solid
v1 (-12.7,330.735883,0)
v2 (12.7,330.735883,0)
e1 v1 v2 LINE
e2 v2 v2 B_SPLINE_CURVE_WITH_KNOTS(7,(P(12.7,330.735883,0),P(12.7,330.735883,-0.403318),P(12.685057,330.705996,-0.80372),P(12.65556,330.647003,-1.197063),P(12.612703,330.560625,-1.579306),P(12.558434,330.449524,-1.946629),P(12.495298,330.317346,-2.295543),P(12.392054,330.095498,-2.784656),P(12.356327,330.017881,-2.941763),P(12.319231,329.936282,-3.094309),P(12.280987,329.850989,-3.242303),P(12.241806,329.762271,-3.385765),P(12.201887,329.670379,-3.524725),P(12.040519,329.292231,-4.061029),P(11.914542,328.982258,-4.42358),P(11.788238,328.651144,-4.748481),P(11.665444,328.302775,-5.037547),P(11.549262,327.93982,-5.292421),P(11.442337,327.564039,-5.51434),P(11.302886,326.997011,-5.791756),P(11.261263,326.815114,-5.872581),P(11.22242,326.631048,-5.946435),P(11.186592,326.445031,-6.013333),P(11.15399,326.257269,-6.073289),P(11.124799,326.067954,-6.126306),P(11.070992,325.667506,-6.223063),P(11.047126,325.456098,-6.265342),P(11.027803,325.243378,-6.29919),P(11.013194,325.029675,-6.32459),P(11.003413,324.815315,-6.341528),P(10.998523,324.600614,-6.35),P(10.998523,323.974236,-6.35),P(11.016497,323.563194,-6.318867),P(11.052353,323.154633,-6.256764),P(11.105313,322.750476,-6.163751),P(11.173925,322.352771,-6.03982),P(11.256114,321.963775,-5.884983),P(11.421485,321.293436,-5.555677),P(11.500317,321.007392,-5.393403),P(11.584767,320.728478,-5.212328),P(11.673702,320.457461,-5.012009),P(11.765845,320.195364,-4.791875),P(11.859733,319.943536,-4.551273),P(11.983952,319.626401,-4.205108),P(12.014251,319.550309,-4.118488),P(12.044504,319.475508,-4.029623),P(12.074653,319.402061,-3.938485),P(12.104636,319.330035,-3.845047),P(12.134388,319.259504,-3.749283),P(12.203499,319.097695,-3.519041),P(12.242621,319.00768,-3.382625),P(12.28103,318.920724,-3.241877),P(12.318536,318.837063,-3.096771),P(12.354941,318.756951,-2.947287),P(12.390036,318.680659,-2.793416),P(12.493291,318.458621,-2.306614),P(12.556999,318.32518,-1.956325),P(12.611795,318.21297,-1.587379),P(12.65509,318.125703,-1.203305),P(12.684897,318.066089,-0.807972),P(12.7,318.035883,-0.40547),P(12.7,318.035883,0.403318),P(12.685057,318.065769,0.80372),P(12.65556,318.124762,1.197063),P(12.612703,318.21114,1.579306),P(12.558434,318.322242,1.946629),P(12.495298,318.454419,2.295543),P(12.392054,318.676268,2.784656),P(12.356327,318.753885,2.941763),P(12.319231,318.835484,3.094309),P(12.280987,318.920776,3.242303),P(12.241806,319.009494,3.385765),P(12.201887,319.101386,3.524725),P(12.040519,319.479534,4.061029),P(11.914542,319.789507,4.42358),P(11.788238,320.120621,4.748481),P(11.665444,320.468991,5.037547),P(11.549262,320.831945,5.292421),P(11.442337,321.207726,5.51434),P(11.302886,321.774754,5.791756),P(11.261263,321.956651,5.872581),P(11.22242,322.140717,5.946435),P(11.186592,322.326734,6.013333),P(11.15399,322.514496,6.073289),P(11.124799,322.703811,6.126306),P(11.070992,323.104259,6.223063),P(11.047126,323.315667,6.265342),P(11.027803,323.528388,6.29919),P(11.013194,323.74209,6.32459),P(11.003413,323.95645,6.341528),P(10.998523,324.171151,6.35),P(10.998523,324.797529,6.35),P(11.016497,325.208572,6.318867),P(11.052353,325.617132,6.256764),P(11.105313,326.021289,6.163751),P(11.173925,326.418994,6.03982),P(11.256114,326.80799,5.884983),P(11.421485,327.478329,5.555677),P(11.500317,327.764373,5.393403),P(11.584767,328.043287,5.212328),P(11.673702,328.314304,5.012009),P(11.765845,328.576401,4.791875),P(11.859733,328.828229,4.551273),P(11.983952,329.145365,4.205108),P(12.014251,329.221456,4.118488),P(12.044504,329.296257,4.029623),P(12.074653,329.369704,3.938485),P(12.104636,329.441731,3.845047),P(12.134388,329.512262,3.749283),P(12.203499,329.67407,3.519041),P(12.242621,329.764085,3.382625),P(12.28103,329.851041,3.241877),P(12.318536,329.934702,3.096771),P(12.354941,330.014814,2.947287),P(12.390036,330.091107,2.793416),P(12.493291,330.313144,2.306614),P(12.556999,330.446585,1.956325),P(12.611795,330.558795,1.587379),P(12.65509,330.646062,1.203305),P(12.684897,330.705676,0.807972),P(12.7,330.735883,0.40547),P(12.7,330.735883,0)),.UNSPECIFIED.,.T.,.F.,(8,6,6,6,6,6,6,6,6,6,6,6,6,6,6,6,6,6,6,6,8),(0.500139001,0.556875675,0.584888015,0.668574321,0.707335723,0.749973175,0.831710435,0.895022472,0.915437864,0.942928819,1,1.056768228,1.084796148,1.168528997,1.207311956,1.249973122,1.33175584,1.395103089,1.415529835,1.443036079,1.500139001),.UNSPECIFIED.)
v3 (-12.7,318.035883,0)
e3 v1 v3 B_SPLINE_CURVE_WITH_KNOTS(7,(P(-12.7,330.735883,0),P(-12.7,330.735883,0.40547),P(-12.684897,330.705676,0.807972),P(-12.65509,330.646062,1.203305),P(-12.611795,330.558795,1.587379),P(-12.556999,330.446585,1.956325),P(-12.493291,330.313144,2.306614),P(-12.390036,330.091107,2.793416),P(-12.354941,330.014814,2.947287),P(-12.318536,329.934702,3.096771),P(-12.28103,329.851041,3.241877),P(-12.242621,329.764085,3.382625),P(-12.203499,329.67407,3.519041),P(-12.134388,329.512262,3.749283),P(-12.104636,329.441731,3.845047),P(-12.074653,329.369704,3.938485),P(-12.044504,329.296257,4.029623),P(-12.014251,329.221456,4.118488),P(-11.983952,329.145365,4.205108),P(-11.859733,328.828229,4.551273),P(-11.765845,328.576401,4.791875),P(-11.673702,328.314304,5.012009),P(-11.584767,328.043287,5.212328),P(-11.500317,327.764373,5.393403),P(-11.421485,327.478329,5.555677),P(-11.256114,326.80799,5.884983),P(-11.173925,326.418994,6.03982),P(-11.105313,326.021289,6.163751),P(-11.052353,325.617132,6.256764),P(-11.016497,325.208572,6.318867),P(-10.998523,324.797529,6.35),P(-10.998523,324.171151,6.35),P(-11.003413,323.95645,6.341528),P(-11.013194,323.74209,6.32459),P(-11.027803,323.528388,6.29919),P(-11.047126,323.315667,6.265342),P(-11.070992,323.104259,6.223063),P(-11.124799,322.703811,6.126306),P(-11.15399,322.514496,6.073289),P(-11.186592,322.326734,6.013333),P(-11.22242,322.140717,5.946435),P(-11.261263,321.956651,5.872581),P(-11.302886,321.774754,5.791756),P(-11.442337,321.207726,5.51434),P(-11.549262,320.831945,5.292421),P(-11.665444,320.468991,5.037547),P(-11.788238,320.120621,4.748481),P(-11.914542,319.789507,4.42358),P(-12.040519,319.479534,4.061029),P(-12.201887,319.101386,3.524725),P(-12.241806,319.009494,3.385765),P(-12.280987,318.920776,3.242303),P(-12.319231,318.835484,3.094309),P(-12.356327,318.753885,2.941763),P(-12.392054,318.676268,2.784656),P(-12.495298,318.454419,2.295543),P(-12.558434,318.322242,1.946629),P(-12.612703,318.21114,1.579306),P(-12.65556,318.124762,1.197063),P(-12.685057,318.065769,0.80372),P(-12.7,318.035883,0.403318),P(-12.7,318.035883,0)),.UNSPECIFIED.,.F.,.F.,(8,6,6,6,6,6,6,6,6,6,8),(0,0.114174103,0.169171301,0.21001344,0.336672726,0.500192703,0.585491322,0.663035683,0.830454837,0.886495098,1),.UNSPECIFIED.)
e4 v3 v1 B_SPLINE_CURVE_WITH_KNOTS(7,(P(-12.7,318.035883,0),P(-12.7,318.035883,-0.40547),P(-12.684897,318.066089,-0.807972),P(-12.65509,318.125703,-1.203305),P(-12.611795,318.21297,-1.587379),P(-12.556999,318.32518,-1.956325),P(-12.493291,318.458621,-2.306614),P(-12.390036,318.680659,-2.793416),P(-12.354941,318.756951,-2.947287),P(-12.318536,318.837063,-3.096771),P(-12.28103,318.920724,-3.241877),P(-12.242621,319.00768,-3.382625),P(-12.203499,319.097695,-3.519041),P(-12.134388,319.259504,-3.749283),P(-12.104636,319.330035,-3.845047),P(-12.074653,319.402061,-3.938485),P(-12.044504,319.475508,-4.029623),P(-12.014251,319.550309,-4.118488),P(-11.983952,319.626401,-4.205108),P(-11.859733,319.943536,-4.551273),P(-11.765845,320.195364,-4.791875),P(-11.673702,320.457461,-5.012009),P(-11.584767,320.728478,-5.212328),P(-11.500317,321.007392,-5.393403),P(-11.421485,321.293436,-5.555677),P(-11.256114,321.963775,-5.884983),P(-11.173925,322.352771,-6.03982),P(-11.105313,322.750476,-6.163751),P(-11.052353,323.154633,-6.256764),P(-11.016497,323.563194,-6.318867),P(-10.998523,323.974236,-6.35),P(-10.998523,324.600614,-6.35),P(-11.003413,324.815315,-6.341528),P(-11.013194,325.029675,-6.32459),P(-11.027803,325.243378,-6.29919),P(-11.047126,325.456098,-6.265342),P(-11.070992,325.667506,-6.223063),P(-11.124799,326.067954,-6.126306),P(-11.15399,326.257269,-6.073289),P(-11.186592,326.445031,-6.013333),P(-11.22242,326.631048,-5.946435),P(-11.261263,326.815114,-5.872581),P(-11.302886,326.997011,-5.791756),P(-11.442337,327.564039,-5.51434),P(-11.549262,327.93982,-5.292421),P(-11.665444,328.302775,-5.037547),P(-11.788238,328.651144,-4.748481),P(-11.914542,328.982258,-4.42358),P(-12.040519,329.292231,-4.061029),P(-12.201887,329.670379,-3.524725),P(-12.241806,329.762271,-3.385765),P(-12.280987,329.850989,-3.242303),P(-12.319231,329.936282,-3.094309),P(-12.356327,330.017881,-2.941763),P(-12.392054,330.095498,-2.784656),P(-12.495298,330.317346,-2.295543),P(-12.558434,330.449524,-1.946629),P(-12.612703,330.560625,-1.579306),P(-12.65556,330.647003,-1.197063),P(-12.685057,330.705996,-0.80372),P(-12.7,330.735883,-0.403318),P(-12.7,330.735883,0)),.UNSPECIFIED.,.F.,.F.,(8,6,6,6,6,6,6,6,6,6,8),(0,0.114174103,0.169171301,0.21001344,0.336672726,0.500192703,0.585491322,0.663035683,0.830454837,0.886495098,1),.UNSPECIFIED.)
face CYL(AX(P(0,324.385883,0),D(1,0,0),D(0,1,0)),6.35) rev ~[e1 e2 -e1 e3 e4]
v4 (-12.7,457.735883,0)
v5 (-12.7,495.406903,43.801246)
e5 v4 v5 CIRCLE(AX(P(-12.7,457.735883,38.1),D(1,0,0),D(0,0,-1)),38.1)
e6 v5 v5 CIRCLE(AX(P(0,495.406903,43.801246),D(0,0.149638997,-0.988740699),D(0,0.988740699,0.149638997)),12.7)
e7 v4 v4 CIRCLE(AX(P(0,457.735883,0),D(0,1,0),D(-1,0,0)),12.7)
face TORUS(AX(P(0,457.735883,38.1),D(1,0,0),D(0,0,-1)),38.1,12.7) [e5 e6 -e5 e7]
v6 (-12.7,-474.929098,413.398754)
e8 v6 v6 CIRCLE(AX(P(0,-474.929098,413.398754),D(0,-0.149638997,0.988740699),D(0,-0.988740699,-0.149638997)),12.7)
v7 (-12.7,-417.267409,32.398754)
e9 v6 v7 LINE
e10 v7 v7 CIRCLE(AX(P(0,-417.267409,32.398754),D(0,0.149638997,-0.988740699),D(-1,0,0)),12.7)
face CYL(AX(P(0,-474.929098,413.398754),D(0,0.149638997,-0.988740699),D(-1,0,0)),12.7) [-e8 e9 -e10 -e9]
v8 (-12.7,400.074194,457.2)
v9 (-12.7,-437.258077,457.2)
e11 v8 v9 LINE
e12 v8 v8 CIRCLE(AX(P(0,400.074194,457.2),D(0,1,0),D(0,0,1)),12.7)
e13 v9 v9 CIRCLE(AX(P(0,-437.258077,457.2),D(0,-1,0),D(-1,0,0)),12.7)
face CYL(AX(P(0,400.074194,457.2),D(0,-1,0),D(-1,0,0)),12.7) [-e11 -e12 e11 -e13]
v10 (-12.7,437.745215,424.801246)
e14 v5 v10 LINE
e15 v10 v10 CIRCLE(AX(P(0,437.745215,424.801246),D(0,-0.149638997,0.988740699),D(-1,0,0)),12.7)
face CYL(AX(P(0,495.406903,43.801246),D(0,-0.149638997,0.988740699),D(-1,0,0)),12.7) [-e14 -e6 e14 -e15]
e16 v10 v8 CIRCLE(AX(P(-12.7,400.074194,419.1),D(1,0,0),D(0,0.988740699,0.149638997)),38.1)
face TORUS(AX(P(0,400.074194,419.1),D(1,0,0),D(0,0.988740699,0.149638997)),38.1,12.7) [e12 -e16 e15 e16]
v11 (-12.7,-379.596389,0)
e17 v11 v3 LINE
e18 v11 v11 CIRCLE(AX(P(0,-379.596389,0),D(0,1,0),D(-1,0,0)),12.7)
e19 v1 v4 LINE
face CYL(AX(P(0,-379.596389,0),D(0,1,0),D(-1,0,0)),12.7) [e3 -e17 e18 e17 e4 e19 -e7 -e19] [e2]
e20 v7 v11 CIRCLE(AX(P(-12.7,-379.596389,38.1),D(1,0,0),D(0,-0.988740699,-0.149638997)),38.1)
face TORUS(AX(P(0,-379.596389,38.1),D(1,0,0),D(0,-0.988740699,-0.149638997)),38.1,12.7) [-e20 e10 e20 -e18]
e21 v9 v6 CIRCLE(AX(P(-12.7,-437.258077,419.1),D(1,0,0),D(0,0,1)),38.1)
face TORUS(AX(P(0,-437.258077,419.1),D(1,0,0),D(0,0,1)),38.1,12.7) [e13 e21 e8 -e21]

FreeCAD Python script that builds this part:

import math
import FreeCAD as App
import Part
import Sketcher

V = App.Vector
Q = App.Units.Quantity

doc = App.newDocument("Part")
params = doc.addObject("Spreadsheet::Sheet", "Params")
for row, (alias, value) in enumerate([
    ("sketch1_diameter", "1 in"),
    ("sketch2_radius", "1.5 in"),
    ("sketch2_radius2", "1.5 in"),
    ("sketch2_radius3", "1.5 in"),
    ("sketch2_radius4", "1.5 in"),
    ("sketch3_diameter", "0.5 in"),
    ("pocket1_length", "1 in"),
], start=1):
    params.set(f"A{row}", alias)
    params.set(f"B{row}", "=" + value)
    params.setAlias(f"B{row}", alias)

body = doc.addObject("PartDesign::Body", "Body")

sketch1 = doc.addObject("Sketcher::SketchObject", "Sketch")
body.addObject(sketch1)
sketch1.AttachmentSupport = (doc.XZ_Plane, [""])
sketch1.MapMode = "FlatFace"
sketch1.AttachmentOffset = App.Placement(V(0, 0, 379.596389), App.Rotation())
sketch1.addGeometry(Part.Circle(V(0, 0, 0), V(0, 0, 1), 13), False)
sketch1.addConstraint([
    Sketcher.Constraint("Coincident", 0, 3, -1, 1),
    Sketcher.Constraint("Diameter", 0, Q("1 in")),
])
sketch1.setExpression("Constraints[1]", "Params.sketch1_diameter")

sketch2 = doc.addObject("Sketcher::SketchObject", "Sketch001")
body.addObject(sketch2)
sketch2.AttachmentSupport = (doc.YZ_Plane, [""])
sketch2.MapMode = "FlatFace"
sketch2.addGeometry([
    Part.LineSegment(V(-379.596389, 0, 0), V(457.735883, 0, 0)),
    Part.ArcOfCircle(Part.Circle(V(457.735883, 38.1, 0), V(0, 0, 1), 38.1), math.radians(-90), math.radians(8.606007)),
    Part.LineSegment(V(495.406903, 43.801246, 0), V(437.745215, 424.801246, 0)),
    Part.ArcOfCircle(Part.Circle(V(400.074194, 419.1, 0), V(0, 0, 1), 38.1), math.radians(8.606007), math.radians(90)),
    Part.LineSegment(V(400.074194, 457.2, 0), V(-437.258077, 457.2, 0)),
    Part.ArcOfCircle(Part.Circle(V(-437.258077, 419.1, 0), V(0, 0, 1), 38.1), math.radians(90), math.radians(188.606007)),
    Part.LineSegment(V(-474.929098, 413.398754, 0), V(-417.267409, 32.398754, 0)),
    Part.ArcOfCircle(Part.Circle(V(-379.596389, 38.1, 0), V(0, 0, 1), 38.1), math.radians(-171.393993), math.radians(-90)),
], False)
sketch2.addConstraint([
    Sketcher.Constraint("Coincident", 0, 2, 1, 1),
    Sketcher.Constraint("Coincident", 1, 2, 2, 1),
    Sketcher.Constraint("Coincident", 2, 2, 3, 1),
    Sketcher.Constraint("Coincident", 3, 2, 4, 1),
    Sketcher.Constraint("Coincident", 4, 2, 5, 1),
    Sketcher.Constraint("Coincident", 5, 2, 6, 1),
    Sketcher.Constraint("Coincident", 6, 2, 7, 1),
    Sketcher.Constraint("Coincident", 7, 2, 0, 1),
    Sketcher.Constraint("Horizontal", 0),
    Sketcher.Constraint("Horizontal", 4),
    Sketcher.Constraint("PointOnObject", 0, 2, -1),
    Sketcher.Constraint("Radius", 1, Q("1.5 in")),
    Sketcher.Constraint("Radius", 3, Q("1.5 in")),
    Sketcher.Constraint("Radius", 5, Q("1.5 in")),
    Sketcher.Constraint("Radius", 7, Q("1.5 in")),
    Sketcher.Constraint("DistanceY", -1, 1, 3, 2, Q("18 in")),
    Sketcher.Constraint("DistanceY", 1, 2, 2, 2, Q("15 in")),
    Sketcher.Constraint("DistanceY", 6, 2, 5, 2, Q("15 in")),
    Sketcher.Constraint("DistanceX", 0, 1, 0, 2, 837.332271),
    Sketcher.Constraint("DistanceX", 4, 2, 4, 1, 837.332271),
    Sketcher.Constraint("DistanceX", 7, 3, -1, 1, 379.596389),
    Sketcher.Constraint("DistanceX", 6, 2, -1, 1, 417.267409),
    Sketcher.Constraint("DistanceX", 7, 2, -1, 1, 379.596389),
    Sketcher.Constraint("DistanceX", 3, 3, 1, 3, 57.661688),
    Sketcher.Constraint("DistanceX", 5, 3, 3, 3, 837.332271),
    Sketcher.Constraint("DistanceX", 5, 3, 7, 3, 57.661688),
    Sketcher.Constraint("DistanceX", 1, 3, 1, 2, 37.671021),
    Sketcher.Constraint("DistanceX", 3, 2, 2, 2, 37.671021),
])
sketch2.setExpression("Constraints[11]", "Params.sketch2_radius")
sketch2.setExpression("Constraints[12]", "Params.sketch2_radius2")
sketch2.setExpression("Constraints[13]", "Params.sketch2_radius3")
sketch2.setExpression("Constraints[14]", "Params.sketch2_radius4")
doc.recompute()

additivepipe = doc.addObject("PartDesign::AdditivePipe", "AdditivePipe")
body.addObject(additivepipe)
additivepipe.Profile = sketch1
additivepipe.Spine = (sketch2, ["Edge1", "Edge2", "Edge3", "Edge4", "Edge5", "Edge6", "Edge7", "Edge8"])

sketch3 = doc.addObject("Sketcher::SketchObject", "Sketch002")
body.addObject(sketch3)
sketch3.AttachmentSupport = (doc.YZ_Plane, [""])
sketch3.MapMode = "FlatFace"
sketch3.addGeometry(Part.Circle(V(324, 0, 0), V(0, 0, 1), 6), False)
sketch3.addConstraint([
    Sketcher.Constraint("PointOnObject", 0, 3, -1),
    Sketcher.Constraint("Diameter", 0, Q("0.5 in")),
    Sketcher.Constraint("DistanceX", -1, 1, 0, 3, 324.385883),
])
sketch3.setExpression("Constraints[1]", "Params.sketch3_diameter")
pocket1 = doc.addObject("PartDesign::Pocket", "Pocket")
body.addObject(pocket1)
pocket1.Profile = sketch3
pocket1.setExpression("Length", "Params.pocket1_length")
pocket1.Midplane = True

doc.recompute()
